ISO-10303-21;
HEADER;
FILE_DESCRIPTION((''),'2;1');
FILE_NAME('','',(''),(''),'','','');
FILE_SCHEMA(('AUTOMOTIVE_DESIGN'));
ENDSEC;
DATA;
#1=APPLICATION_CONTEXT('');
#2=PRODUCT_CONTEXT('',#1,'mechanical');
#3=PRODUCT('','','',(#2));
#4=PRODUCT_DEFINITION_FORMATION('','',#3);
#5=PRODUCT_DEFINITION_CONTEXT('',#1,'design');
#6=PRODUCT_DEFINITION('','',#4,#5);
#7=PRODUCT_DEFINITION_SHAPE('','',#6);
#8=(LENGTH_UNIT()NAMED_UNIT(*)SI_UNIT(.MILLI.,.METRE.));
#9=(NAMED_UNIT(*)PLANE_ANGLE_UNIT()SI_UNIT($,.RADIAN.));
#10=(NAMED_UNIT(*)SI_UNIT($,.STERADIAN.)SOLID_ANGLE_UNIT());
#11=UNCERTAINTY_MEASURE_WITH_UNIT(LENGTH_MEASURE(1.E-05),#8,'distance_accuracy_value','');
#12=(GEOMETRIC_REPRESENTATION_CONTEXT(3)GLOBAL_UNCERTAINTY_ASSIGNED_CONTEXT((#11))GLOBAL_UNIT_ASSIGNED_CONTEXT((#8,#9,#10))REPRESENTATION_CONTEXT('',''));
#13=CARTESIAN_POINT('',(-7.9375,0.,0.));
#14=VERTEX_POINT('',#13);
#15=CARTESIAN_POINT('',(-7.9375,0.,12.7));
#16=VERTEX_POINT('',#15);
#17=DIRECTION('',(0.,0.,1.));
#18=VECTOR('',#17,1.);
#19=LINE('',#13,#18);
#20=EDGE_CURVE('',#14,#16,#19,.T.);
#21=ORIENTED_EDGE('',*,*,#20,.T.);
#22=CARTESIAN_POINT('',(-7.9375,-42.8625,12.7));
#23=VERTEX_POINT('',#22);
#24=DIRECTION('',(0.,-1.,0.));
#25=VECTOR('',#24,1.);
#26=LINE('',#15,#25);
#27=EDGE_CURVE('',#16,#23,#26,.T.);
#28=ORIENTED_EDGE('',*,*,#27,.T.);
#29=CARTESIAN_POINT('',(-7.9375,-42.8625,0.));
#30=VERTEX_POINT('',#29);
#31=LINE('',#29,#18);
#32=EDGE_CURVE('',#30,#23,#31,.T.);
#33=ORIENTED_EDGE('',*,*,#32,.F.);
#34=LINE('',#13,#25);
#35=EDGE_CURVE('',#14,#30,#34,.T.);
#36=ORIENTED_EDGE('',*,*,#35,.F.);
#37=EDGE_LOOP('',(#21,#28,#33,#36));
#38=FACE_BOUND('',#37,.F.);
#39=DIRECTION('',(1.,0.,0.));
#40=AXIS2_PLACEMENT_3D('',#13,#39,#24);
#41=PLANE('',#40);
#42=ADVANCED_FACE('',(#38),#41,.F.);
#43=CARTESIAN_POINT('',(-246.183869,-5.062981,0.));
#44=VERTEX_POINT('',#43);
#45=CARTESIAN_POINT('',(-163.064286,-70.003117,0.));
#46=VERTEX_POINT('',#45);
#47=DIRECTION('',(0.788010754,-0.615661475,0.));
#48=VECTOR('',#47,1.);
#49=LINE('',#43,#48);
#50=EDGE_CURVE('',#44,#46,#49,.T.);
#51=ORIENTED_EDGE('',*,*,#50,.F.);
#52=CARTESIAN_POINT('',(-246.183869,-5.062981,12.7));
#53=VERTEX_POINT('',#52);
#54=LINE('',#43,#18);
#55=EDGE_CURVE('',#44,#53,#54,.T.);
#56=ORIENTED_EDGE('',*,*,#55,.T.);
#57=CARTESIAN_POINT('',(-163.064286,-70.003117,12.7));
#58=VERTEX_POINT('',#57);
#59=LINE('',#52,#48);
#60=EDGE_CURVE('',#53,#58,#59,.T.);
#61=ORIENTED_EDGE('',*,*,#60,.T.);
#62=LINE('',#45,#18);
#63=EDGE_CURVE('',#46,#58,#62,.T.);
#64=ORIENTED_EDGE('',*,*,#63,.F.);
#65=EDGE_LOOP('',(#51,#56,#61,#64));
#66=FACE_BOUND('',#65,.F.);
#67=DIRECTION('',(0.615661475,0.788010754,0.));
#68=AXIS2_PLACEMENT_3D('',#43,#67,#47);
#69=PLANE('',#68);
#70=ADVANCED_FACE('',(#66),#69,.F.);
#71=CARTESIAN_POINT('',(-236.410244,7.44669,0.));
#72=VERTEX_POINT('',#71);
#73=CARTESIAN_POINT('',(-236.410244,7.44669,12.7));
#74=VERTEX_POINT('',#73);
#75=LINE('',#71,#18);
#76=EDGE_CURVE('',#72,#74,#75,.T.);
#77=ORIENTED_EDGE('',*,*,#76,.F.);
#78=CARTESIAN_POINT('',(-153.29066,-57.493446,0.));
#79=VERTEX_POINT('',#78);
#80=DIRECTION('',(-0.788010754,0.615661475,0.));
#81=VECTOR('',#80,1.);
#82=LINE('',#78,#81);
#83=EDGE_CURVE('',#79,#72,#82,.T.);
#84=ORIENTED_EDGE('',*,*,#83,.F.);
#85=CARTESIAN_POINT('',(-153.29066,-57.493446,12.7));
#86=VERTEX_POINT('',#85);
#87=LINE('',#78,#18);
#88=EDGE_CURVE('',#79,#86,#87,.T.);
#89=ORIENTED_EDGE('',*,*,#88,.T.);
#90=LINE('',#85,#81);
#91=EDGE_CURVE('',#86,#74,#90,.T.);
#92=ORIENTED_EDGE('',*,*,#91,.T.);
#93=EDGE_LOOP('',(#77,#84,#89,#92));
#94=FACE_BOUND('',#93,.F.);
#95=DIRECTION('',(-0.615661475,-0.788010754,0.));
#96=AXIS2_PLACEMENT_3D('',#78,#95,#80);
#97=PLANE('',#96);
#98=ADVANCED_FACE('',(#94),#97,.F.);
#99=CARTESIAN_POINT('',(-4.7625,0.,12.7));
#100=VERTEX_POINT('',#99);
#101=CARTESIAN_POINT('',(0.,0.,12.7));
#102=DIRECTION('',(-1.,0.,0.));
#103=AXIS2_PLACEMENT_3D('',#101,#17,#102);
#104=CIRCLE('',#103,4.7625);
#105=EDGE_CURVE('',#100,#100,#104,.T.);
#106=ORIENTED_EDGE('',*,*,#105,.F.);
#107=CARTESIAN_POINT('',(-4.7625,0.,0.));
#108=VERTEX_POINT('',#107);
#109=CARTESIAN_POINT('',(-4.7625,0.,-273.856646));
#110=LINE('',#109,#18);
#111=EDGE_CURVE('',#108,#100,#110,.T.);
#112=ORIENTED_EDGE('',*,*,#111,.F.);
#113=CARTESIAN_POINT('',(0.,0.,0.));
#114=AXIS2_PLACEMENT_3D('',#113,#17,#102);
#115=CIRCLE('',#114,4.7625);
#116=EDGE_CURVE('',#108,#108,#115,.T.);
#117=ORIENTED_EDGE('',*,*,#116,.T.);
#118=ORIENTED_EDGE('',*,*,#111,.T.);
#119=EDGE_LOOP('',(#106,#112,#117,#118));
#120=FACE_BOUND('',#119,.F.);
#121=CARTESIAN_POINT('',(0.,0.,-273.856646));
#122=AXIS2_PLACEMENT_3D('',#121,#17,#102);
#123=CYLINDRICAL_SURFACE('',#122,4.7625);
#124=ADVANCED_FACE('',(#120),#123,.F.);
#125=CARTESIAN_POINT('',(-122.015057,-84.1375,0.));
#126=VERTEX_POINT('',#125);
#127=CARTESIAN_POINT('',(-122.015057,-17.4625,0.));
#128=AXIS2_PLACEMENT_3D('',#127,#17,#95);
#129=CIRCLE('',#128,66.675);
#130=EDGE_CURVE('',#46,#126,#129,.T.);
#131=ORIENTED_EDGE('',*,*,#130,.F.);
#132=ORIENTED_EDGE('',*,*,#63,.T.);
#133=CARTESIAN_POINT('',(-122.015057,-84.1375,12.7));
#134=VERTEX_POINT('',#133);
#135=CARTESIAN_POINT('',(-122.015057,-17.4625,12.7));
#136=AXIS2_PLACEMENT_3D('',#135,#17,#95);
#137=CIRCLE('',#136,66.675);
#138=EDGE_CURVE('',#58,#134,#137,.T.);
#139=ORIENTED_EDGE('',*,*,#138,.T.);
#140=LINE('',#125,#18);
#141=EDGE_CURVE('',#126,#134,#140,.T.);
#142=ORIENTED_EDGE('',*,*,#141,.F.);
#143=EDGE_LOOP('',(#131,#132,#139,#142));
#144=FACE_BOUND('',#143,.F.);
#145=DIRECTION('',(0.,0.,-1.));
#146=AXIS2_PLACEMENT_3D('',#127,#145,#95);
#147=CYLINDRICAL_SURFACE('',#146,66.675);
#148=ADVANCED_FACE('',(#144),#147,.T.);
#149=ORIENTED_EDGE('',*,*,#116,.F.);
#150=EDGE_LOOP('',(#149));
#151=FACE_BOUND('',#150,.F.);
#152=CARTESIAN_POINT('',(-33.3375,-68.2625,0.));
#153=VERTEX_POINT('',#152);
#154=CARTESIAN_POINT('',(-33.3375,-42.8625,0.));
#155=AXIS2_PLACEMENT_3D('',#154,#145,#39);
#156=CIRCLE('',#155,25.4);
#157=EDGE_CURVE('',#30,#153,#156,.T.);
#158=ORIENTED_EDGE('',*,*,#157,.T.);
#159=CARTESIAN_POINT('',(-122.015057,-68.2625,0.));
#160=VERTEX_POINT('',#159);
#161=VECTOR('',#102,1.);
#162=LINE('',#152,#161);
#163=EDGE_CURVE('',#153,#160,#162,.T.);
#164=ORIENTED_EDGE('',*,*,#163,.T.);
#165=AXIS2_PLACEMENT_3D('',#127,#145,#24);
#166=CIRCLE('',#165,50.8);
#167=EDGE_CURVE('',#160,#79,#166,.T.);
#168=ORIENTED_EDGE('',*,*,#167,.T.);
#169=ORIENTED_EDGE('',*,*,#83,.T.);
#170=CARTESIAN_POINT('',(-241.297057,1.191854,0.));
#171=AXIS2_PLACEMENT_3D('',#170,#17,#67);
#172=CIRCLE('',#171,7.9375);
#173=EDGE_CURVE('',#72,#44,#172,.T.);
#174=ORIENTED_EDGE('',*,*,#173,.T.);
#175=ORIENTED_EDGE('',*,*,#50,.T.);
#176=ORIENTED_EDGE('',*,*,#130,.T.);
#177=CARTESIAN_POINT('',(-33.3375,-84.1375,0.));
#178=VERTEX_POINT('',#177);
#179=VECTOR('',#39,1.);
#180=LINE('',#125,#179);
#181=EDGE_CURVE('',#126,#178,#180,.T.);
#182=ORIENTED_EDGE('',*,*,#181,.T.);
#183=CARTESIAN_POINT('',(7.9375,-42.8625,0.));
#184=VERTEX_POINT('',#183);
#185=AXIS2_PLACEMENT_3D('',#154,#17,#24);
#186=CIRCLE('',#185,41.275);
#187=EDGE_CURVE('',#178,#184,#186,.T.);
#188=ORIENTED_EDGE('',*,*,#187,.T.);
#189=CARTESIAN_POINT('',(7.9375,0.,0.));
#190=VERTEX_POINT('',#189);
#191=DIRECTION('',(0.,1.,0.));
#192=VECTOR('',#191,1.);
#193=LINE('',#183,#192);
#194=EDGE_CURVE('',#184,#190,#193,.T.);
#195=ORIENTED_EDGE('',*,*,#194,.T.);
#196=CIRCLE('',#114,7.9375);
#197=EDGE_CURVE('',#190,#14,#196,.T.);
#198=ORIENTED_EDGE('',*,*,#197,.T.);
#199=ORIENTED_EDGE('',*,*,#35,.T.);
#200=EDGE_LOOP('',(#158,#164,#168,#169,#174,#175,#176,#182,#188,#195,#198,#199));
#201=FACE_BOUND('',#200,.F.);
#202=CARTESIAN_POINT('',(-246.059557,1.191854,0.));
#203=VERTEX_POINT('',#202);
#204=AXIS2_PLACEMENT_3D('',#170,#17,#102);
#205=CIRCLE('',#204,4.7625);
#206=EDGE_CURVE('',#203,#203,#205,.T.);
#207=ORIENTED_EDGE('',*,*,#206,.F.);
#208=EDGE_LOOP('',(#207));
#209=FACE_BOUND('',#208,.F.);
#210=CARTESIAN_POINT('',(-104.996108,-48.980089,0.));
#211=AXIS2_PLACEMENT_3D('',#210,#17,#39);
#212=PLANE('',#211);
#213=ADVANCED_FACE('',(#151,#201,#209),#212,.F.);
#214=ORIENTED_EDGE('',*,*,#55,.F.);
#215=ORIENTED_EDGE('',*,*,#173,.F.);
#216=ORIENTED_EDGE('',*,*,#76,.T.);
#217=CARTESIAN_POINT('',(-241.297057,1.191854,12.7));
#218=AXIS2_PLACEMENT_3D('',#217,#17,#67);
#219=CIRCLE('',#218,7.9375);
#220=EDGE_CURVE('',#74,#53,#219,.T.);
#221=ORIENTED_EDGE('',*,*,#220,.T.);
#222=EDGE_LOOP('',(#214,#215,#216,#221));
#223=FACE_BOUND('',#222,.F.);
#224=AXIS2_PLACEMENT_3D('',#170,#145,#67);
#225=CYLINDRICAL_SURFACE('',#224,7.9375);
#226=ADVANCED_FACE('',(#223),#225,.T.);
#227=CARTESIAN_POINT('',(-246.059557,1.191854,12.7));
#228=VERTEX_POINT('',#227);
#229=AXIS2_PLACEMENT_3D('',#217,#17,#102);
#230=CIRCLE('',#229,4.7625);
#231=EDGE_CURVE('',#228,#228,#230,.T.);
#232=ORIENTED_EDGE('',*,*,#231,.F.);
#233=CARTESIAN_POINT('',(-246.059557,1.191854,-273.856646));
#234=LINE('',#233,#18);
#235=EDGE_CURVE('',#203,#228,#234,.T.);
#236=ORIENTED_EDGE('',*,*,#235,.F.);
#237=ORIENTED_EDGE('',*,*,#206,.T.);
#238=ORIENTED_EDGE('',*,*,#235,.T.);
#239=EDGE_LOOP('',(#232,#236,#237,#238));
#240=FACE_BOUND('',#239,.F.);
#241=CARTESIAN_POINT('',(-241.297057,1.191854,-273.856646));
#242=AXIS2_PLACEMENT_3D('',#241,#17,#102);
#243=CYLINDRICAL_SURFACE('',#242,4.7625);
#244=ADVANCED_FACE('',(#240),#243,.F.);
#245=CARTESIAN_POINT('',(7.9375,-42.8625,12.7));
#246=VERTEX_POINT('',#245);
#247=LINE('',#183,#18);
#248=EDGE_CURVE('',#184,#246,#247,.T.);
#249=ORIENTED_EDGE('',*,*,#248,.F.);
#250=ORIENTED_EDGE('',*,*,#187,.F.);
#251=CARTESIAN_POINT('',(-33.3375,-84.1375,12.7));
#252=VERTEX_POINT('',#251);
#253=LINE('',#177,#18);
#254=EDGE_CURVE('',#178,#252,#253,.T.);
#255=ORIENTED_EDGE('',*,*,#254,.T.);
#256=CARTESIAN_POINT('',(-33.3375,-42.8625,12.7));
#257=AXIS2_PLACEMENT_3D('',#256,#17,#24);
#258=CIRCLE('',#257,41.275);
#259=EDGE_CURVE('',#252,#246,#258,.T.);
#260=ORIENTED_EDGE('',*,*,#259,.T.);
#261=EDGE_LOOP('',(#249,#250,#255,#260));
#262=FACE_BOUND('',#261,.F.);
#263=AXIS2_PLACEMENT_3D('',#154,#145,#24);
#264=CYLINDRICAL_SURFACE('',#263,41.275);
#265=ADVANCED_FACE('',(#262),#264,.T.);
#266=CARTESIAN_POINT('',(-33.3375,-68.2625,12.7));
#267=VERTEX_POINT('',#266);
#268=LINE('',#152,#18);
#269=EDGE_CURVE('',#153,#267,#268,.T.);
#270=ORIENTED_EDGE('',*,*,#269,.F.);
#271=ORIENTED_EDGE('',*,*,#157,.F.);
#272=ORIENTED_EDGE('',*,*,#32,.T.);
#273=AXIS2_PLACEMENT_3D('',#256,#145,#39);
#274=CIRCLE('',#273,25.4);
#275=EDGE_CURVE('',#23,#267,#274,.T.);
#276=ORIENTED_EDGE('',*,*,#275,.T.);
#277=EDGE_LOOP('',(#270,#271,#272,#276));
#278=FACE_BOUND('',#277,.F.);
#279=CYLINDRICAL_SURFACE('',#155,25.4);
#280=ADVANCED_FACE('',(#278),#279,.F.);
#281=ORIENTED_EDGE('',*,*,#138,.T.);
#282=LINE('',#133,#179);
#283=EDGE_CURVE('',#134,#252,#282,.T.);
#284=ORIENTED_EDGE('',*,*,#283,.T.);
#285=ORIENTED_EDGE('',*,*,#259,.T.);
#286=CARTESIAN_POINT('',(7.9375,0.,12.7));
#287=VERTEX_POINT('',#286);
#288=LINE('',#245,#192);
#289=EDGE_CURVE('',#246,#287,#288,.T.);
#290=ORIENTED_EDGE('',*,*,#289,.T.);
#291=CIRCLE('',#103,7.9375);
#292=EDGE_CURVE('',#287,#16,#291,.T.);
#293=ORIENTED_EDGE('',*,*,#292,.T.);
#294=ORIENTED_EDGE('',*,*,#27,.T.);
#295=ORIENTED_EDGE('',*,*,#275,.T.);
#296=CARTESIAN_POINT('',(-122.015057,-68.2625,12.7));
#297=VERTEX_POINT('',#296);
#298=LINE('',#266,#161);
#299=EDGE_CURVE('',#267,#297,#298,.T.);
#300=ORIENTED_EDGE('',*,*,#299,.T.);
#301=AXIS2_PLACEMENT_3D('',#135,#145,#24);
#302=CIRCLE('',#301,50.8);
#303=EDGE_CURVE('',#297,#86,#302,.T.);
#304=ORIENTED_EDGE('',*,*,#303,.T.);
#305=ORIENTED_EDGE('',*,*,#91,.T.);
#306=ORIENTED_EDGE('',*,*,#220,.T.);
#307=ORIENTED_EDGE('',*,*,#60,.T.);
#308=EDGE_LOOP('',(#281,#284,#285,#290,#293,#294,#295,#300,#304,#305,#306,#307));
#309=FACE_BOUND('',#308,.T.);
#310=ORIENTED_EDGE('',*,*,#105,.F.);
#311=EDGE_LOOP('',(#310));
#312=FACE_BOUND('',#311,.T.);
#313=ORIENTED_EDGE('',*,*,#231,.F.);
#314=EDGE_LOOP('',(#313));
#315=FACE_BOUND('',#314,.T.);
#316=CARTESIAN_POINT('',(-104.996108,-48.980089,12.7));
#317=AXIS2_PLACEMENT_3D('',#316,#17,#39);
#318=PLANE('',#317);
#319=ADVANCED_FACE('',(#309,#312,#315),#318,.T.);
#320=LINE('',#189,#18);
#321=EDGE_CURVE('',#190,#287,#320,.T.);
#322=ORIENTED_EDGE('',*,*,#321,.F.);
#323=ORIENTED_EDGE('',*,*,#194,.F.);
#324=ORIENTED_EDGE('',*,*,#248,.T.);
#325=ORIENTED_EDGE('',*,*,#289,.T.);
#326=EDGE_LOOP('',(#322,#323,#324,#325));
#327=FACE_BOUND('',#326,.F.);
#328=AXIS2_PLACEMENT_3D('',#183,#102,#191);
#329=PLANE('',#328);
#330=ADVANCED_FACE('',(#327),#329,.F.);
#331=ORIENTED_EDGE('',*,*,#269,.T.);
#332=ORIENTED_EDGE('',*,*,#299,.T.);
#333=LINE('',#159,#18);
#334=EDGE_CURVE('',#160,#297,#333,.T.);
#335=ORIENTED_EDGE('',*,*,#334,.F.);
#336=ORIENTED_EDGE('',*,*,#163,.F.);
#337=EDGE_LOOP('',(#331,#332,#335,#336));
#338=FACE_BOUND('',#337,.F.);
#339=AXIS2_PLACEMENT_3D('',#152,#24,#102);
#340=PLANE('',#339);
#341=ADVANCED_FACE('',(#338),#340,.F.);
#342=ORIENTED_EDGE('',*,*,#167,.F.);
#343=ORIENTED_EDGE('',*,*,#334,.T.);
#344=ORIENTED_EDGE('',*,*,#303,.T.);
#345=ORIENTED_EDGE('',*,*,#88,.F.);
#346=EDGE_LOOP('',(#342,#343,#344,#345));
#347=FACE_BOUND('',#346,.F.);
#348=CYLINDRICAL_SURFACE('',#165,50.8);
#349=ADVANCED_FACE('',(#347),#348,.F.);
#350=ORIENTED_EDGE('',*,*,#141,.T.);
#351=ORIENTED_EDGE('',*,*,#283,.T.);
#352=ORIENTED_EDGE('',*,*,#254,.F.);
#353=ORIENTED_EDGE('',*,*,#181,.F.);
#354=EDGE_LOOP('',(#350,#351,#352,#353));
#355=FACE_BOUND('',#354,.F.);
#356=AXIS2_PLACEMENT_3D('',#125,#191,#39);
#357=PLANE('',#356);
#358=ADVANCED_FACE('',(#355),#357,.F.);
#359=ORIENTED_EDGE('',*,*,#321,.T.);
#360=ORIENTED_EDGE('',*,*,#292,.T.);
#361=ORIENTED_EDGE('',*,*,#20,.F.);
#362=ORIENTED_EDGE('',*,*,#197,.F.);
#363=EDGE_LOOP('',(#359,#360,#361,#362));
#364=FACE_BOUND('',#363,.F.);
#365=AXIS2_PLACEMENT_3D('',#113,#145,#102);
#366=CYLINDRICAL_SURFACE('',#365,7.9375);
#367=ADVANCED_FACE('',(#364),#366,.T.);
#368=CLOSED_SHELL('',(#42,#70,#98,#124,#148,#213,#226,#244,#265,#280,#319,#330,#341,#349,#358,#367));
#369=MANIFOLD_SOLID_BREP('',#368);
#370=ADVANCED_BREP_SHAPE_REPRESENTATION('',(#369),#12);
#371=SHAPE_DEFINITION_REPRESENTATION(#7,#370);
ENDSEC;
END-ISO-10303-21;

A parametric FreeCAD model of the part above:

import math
import FreeCAD as App
import Part
import Sketcher

V = App.Vector
Q = App.Units.Quantity

doc = App.newDocument("Part")
body = doc.addObject("PartDesign::Body", "Body")

# Sketch on XY plane
sketch1 = body.newObject("Sketcher::SketchObject", "Sketch")
sketch1.AttachmentSupport = (doc.getObject("XY_Plane"), [""])
sketch1.MapMode = "FlatFace"
sketch1.addGeometry([
    Part.ArcOfCircle(Part.Circle(V(-122.015057, -17.4625, 0), V(0, 0, 1), 50.8), math.radians(-128), math.radians(-90)),  # 0
    Part.LineSegment(V(-153.29066, -57.493446, 0), V(-236.410244, 7.44669, 0)),  # 1
    Part.ArcOfCircle(Part.Circle(V(-241.297057, 1.191854, 0), V(0, 0, 1), 7.9375), math.radians(52), math.radians(232)),  # 2
    Part.LineSegment(V(-246.183869, -5.062981, 0), V(-163.064286, -70.003117, 0)),  # 3
    Part.ArcOfCircle(Part.Circle(V(-122.015057, -17.4625, 0), V(0, 0, 1), 66.675), math.radians(-128), math.radians(-90)),  # 4
    Part.LineSegment(V(-122.015057, -84.1375, 0), V(-33.3375, -84.1375, 0)),  # 5
    Part.ArcOfCircle(Part.Circle(V(-33.3375, -42.8625, 0), V(0, 0, 1), 41.275), math.radians(-90), math.radians(0)),  # 6
    Part.LineSegment(V(7.9375, -42.8625, 0), V(7.9375, 0, 0)),  # 7
    Part.ArcOfCircle(Part.Circle(V(0, 0, 0), V(0, 0, 1), 7.9375), math.radians(0), math.radians(180)),  # 8
    Part.LineSegment(V(-7.9375, 0, 0), V(-7.9375, -42.8625, 0)),  # 9
    Part.ArcOfCircle(Part.Circle(V(-33.3375, -42.8625, 0), V(0, 0, 1), 25.4), math.radians(-90), math.radians(0)),  # 10
    Part.LineSegment(V(-33.3375, -68.2625, 0), V(-122.015057, -68.2625, 0)),  # 11
], False)
sketch1.addConstraint([
    Sketcher.Constraint("Tangent", 0, 1, 1, 1),
    Sketcher.Constraint("Tangent", 1, 2, 2, 1),
    Sketcher.Constraint("Tangent", 2, 2, 3, 1),
    Sketcher.Constraint("Tangent", 3, 2, 4, 1),
    Sketcher.Constraint("Tangent", 4, 2, 5, 1),
    Sketcher.Constraint("Tangent", 5, 2, 6, 1),
    Sketcher.Constraint("Tangent", 6, 2, 7, 1),
    Sketcher.Constraint("Tangent", 7, 2, 8, 1),
    Sketcher.Constraint("Tangent", 8, 2, 9, 1),
    Sketcher.Constraint("Tangent", 9, 2, 10, 2),
    Sketcher.Constraint("Tangent", 10, 1, 11, 1),
    Sketcher.Constraint("Tangent", 11, 2, 0, 2),
    Sketcher.Constraint("Horizontal", 5),
    Sketcher.Constraint("Vertical", 7),
    Sketcher.Constraint("Vertical", 9),
    Sketcher.Constraint("Horizontal", 11),
    Sketcher.Constraint("Coincident", 8, 3, -1, 1),
    Sketcher.Constraint("Coincident", 4, 3, 0, 3),
    Sketcher.Constraint("Coincident", 10, 3, 6, 3),
    Sketcher.Constraint("Equal", 2, 8),
    Sketcher.Constraint("Radius", 0, Q("2 in")),
    Sketcher.Constraint("Radius", 10, Q("1 in")),
    Sketcher.Constraint("Angle", 1, Q("142 deg")),
    Sketcher.Constraint("Radius", 2, Q("0.3125 in")),
    Sketcher.Constraint("DistanceY", 7, 1, 7, 2, Q("1.6875 in")),
    Sketcher.Constraint("DistanceX", 2, 3, 0, 3, Q("119.282 mm")),
    Sketcher.Constraint("DistanceX", 5, 1, 5, 2, Q("88.677557 mm")),
])
pad1 = body.newObject("PartDesign::Pad", "Pad")
pad1.Profile = sketch1
pad1.Length = Q("0.5 in")

# Sketch on XY plane
sketch2 = body.newObject("Sketcher::SketchObject", "Sketch001")
sketch2.AttachmentSupport = (doc.getObject("XY_Plane"), [""])
sketch2.MapMode = "FlatFace"
sketch2.addGeometry([
    Part.Circle(V(-241.297057, 1.191854, 0), V(0, 0, 1), 4.7625),
    Part.Circle(V(0, 0, 0), V(0, 0, 1), 4.7625),
], False)
sketch2.addConstraint([
    Sketcher.Constraint("Coincident", 1, 3, -1, 1),
    Sketcher.Constraint("Equal", 0, 1),
    Sketcher.Constraint("Diameter", 0, Q("0.375 in")),
    Sketcher.Constraint("DistanceX", 0, 3, -1, 1, Q("241.297057 mm")),
    Sketcher.Constraint("DistanceY", -1, 1, 0, 3, Q("1.191854 mm")),
])
doc.recompute()
hole = body.newObject("PartDesign::Hole", "Hole")
hole.Profile = sketch2
hole.ThreadType = "None"
hole.Diameter = Q("0.375 in")
hole.DepthType = "ThroughAll"
hole.Reversed = True

doc.recompute()
